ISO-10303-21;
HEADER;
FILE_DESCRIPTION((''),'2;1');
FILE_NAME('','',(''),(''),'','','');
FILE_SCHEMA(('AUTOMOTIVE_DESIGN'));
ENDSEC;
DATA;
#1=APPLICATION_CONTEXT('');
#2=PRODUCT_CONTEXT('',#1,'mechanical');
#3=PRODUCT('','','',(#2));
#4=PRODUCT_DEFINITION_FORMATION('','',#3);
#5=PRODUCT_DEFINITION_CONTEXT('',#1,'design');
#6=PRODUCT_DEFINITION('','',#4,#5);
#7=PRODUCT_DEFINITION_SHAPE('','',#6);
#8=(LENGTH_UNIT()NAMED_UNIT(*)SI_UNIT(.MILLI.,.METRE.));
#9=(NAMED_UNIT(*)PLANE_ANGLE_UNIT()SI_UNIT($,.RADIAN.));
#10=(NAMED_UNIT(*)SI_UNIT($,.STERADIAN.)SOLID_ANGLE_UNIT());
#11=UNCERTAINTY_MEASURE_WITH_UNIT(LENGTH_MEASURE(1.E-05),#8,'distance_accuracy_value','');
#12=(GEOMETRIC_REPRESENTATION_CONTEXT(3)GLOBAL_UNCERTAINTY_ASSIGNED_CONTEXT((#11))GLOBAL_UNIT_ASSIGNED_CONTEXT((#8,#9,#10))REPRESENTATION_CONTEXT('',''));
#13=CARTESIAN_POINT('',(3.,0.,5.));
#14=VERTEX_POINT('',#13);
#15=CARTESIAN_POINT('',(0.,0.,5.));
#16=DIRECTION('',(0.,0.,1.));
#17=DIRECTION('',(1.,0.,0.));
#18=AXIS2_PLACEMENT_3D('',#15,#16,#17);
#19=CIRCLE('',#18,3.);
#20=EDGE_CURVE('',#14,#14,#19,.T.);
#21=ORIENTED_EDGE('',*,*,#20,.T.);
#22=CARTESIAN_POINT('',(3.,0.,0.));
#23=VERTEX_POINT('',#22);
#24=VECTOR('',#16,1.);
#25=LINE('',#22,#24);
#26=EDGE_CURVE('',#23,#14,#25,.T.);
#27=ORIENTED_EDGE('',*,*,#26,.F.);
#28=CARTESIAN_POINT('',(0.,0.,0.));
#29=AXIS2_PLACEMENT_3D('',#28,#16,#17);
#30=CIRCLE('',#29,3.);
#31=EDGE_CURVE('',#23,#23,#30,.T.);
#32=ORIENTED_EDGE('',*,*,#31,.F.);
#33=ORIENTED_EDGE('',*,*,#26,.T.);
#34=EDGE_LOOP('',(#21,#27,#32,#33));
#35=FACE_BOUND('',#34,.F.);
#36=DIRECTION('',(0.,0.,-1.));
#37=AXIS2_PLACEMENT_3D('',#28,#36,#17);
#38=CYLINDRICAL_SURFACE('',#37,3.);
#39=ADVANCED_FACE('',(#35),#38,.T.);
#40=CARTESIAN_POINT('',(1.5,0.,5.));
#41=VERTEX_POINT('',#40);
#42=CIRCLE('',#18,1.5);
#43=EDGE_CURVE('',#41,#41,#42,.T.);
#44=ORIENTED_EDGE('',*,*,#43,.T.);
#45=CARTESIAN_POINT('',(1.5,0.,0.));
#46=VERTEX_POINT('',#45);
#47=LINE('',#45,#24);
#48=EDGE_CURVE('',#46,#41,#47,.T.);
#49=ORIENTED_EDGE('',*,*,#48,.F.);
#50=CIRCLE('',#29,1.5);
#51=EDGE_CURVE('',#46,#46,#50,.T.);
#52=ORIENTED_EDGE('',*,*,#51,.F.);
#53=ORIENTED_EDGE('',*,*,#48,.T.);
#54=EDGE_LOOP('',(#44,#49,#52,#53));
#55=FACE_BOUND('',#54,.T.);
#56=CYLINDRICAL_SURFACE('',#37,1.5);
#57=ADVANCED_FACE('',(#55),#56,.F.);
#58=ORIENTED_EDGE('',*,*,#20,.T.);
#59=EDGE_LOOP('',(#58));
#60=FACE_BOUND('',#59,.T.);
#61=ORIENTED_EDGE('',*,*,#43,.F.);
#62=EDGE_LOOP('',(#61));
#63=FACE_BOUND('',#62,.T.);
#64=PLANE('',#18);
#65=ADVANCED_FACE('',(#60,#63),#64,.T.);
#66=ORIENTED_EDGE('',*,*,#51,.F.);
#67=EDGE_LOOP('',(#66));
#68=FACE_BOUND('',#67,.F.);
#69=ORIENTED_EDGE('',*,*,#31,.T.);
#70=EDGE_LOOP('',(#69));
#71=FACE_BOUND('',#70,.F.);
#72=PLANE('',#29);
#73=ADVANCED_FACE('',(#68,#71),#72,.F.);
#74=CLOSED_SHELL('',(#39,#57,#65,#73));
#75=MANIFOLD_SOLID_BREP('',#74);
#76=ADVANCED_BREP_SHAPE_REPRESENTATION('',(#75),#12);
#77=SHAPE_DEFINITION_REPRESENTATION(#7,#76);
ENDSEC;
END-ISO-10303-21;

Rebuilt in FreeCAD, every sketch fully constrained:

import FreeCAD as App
import Part
import Sketcher

V = App.Vector
Q = App.Units.Quantity

doc = App.newDocument("Part")
body = doc.addObject("PartDesign::Body", "Body")

# Sketch on XY plane
sketch1 = body.newObject("Sketcher::SketchObject", "Sketch")
sketch1.AttachmentSupport = (doc.getObject("XY_Plane"), [""])
sketch1.MapMode = "FlatFace"
sketch1.addGeometry([
    Part.Circle(V(0, 0, 0), V(0, 0, 1), 3),
    Part.Circle(V(0, 0, 0), V(0, 0, 1), 1.5),
], False)
sketch1.addConstraint([
    Sketcher.Constraint("Coincident", 0, 3, -1, 1),
    Sketcher.Constraint("Coincident", 1, 3, -1, 1),
    Sketcher.Constraint("Diameter", 0, Q("6 mm")),
    Sketcher.Constraint("Diameter", 1, Q("3 mm")),
])
pad1 = body.newObject("PartDesign::Pad", "Pad")
pad1.Profile = sketch1
pad1.Length = 5

doc.recompute()
